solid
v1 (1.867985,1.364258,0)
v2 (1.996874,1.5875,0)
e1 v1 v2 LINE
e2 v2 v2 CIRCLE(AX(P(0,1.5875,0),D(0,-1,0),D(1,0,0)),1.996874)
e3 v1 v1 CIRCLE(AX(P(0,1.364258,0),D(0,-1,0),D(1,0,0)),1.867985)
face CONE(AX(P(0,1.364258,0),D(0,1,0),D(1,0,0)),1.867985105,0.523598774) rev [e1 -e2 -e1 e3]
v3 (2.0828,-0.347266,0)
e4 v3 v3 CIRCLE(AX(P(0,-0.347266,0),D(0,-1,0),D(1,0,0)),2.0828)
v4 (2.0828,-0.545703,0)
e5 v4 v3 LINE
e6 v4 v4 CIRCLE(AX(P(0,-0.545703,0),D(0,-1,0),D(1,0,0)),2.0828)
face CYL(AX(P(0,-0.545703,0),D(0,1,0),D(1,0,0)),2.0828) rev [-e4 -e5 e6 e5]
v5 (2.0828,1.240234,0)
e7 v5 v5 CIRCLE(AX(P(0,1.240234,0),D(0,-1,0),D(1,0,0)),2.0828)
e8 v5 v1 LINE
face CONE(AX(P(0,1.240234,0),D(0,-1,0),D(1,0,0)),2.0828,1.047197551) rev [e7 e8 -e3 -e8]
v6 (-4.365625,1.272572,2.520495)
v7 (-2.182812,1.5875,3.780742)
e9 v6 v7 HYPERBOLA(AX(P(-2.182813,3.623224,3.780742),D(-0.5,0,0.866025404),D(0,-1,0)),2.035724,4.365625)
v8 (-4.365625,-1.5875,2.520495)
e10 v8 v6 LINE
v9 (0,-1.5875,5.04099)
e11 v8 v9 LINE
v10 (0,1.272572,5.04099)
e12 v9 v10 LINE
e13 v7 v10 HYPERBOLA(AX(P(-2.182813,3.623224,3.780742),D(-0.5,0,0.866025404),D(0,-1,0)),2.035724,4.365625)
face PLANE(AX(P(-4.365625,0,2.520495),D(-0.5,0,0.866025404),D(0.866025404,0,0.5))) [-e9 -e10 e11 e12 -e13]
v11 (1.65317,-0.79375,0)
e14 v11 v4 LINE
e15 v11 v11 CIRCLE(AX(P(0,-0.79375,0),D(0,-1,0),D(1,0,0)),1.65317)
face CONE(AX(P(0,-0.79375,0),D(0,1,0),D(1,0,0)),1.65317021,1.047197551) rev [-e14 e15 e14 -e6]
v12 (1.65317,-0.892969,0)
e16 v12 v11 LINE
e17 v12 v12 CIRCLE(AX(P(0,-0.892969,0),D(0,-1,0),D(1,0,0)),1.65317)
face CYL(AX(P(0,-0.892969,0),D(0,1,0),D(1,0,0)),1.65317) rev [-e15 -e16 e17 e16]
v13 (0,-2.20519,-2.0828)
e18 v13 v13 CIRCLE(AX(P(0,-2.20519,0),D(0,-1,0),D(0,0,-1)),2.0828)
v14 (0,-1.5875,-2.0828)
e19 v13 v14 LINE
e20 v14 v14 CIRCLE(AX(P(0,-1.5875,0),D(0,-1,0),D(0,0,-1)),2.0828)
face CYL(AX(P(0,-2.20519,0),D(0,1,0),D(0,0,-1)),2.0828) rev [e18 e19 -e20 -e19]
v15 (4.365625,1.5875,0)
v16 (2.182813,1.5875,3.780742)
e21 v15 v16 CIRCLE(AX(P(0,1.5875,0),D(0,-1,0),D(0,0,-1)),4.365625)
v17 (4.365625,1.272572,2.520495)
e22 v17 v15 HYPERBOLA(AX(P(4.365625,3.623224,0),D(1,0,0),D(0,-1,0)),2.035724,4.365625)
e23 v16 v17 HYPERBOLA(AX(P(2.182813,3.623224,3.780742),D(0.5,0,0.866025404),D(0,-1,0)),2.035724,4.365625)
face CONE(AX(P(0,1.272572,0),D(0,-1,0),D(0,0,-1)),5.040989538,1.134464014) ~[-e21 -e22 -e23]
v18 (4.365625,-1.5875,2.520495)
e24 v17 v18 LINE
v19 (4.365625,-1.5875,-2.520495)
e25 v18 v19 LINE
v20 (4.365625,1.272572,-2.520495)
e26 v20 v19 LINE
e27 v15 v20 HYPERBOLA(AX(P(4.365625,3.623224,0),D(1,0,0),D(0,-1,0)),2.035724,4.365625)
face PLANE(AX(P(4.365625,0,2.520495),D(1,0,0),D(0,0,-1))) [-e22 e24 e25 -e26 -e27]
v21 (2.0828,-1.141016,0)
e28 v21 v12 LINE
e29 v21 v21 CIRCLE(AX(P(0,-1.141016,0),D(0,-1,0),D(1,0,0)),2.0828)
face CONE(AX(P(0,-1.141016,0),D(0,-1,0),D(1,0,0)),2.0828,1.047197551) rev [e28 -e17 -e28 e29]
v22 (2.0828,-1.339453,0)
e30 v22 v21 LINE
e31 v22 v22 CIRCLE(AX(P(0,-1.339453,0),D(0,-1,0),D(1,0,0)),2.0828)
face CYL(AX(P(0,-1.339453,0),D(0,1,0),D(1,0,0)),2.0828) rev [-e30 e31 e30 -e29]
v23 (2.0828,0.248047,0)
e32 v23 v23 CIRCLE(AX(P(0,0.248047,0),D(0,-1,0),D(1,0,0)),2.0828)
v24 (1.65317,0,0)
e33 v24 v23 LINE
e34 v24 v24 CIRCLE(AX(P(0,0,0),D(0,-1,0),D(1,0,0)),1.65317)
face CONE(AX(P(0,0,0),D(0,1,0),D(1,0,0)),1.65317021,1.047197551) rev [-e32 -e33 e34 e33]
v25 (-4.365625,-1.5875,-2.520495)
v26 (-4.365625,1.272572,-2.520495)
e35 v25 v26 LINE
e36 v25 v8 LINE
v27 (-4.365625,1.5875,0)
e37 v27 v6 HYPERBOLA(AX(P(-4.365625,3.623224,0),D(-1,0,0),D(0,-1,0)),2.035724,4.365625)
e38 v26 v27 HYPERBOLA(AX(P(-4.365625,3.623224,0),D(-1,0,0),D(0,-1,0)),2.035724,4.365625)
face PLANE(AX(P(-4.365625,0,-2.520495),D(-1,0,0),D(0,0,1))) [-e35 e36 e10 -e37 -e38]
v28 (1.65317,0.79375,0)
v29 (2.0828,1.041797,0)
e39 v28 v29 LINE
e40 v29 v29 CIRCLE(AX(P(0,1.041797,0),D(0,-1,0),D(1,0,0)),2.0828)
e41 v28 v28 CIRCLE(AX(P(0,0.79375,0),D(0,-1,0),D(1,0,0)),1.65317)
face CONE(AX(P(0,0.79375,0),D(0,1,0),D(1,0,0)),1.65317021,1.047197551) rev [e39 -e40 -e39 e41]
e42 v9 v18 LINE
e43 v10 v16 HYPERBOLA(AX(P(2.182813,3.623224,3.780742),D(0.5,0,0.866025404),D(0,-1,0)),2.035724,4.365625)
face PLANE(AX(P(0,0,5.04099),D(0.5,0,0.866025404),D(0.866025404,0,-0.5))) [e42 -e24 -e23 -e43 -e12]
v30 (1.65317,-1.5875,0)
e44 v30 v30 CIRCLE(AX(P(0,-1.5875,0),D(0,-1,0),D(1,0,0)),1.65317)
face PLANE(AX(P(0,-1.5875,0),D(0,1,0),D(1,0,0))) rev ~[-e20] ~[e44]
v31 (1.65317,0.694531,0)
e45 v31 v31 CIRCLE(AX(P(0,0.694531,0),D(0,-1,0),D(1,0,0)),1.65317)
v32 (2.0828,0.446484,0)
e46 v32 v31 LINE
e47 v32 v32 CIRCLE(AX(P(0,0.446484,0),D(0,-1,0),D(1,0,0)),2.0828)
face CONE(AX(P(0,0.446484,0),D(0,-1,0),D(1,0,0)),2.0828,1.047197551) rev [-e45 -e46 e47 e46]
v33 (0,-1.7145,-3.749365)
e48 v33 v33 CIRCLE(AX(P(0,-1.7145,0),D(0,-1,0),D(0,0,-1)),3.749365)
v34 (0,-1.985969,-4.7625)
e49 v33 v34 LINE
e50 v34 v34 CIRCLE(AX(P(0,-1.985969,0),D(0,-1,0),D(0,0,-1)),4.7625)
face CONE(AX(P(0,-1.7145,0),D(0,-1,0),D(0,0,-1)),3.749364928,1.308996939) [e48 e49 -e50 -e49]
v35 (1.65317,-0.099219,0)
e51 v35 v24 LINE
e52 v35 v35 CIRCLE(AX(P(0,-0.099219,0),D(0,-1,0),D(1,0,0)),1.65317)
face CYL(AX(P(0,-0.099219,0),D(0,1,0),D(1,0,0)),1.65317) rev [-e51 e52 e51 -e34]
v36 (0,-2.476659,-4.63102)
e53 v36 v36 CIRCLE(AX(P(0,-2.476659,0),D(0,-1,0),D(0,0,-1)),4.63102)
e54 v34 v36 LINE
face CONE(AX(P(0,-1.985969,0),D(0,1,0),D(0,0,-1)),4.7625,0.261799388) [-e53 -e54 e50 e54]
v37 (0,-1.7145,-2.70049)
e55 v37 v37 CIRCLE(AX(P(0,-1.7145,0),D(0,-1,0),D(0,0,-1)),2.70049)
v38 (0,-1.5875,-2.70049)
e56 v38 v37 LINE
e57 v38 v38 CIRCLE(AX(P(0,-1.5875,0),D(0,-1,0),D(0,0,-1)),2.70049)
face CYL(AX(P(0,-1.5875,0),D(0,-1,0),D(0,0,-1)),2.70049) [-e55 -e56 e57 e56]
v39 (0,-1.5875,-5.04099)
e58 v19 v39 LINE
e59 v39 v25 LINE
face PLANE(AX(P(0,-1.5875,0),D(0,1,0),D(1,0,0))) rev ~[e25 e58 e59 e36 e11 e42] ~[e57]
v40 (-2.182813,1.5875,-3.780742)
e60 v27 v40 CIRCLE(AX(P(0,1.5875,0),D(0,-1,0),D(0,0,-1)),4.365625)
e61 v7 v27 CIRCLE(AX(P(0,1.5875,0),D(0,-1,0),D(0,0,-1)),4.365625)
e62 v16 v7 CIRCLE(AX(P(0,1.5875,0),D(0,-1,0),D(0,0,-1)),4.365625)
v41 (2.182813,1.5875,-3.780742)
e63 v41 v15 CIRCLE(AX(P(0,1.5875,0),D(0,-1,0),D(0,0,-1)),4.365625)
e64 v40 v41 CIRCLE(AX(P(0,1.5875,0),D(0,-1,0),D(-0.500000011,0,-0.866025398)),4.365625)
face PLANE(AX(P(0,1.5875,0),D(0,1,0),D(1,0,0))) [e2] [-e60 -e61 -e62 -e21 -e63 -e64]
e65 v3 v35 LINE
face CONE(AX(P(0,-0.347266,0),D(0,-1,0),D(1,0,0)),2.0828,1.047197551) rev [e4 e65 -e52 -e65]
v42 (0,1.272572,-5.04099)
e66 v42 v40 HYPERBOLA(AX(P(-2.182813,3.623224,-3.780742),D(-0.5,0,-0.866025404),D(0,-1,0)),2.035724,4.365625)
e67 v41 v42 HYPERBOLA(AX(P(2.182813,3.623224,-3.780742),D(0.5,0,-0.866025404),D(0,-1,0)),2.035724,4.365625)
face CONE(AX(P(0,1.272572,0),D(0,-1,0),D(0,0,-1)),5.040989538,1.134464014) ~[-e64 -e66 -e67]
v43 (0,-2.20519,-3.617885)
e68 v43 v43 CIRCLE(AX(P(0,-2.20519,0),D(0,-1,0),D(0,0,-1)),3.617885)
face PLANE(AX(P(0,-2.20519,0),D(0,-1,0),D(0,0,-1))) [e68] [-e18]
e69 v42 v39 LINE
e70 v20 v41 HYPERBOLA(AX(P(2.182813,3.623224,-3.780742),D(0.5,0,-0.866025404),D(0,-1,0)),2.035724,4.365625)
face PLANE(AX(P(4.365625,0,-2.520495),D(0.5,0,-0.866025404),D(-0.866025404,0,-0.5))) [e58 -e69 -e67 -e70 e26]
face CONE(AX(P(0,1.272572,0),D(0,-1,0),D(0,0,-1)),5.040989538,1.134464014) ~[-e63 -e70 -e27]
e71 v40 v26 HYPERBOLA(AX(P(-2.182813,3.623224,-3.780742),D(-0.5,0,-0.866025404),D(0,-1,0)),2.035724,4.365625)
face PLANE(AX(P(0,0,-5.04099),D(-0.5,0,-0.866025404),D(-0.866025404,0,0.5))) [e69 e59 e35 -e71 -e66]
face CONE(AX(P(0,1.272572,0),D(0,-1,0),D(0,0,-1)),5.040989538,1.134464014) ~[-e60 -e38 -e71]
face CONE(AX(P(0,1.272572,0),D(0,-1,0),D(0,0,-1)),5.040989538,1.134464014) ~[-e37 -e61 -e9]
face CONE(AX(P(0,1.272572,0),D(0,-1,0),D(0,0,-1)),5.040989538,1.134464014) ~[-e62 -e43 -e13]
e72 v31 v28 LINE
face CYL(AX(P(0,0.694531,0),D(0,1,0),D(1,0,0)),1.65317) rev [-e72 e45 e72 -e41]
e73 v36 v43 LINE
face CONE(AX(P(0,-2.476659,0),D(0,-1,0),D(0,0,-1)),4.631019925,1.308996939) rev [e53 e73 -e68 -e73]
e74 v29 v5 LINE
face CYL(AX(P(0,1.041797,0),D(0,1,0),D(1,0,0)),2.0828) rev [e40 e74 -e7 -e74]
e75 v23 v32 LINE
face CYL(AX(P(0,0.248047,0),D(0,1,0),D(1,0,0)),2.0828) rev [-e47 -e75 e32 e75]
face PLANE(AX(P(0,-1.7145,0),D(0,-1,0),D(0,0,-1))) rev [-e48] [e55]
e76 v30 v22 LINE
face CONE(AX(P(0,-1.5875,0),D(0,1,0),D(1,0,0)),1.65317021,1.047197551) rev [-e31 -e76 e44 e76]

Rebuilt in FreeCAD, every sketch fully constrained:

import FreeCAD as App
import Part
import Sketcher

V = App.Vector
Q = App.Units.Quantity


def add_polygon(sketch, points):
    """Adds a closed chain of lines whose ends are joined by coincident constraints."""
    first, n = sketch.GeometryCount, len(points)
    for a, b in zip(points, points[1:] + points[:1]):
        sketch.addGeometry(Part.LineSegment(App.Vector(*a, 0), App.Vector(*b, 0)), False)
    for i in range(n):
        sketch.addConstraint(Sketcher.Constraint("Coincident", first + i, 2, first + (i + 1) % n, 1))

doc = App.newDocument("Part")
body = doc.addObject("PartDesign::Body", "Body")

# Sketch on XZ plane
sketch1 = body.newObject("Sketcher::SketchObject", "Sketch")
sketch1.AttachmentSupport = (doc.getObject("XZ_Plane"), [""])
sketch1.MapMode = "FlatFace"
add_polygon(sketch1, [(0, -5.04099), (-4.365625, -2.520495), (-4.365625, 2.520495), (0, 5.04099), (4.365625, 2.520495), (4.365625, -2.520495)])  # lines 0-5
sketch1.addConstraint(Sketcher.Constraint("Vertical", 1))
sketch1.addConstraint(Sketcher.Constraint("Vertical", 4))
sketch1.addConstraint(Sketcher.Constraint("Symmetric", 0, 2, 3, 2, -1, 1))
sketch1.addConstraint(Sketcher.Constraint("Symmetric", 2, 2, 5, 2, -1, 1))
sketch1.addConstraint(Sketcher.Constraint("PointOnObject", 2, 2, -2))
sketch1.addConstraint(Sketcher.Constraint("Parallel", 2, 5))
sketch1.addConstraint(Sketcher.Constraint("Horizontal", 1, 2, 3, 2))
sketch1.addConstraint(Sketcher.Constraint("Angle", 0, Q("150 deg")))
sketch1.addConstraint(Sketcher.Constraint("DistanceX", 0, 2, -1, 1, Q("0.171875 in")))
sketch1.addConstraint(Sketcher.Constraint("DistanceY", 1, 1, 1, 2, 5.04099))
pad1 = body.newObject("PartDesign::Pad", "Pad")
pad1.Profile = sketch1
pad1.Length = Q("0.125 in")
pad1.Midplane = True

# Sketch on YZ plane
sketch2 = body.newObject("Sketcher::SketchObject", "Sketch001")
sketch2.AttachmentSupport = (doc.getObject("YZ_Plane"), [""])
sketch2.MapMode = "FlatFace"
add_polygon(sketch2, [(1.5875, -5.04099), (1.5875, -4.365625), (1.272572, -5.04099)])  # lines 0-2
sketch2.addConstraint(Sketcher.Constraint("Vertical", 0))
sketch2.addConstraint(Sketcher.Constraint("Horizontal", 2))
sketch2.addConstraint(Sketcher.Constraint("Angle", 1, Q("-115 deg")))
sketch2.addConstraint(Sketcher.Constraint("DistanceX", -1, 1, 0, 2, Q("0.0625 in")))
sketch2.addConstraint(Sketcher.Constraint("DistanceY", 0, 2, -1, 1, Q("0.171875 in")))
sketch2.addConstraint(Sketcher.Constraint("DistanceX", 2, 1, 2, 2, 0.314928))
groove = body.newObject("PartDesign::Groove", "Groove")
groove.Profile = sketch2
groove.ReferenceAxis = (sketch2, ["H_Axis"])
groove.Angle = 360

# Sketch on XY plane
sketch3 = body.newObject("Sketcher::SketchObject", "Sketch002")
sketch3.AttachmentSupport = (doc.getObject("XY_Plane"), [""])
sketch3.MapMode = "FlatFace"
add_polygon(sketch3, [(1.65317, 1.488281), (1.65317, 1.5875), (0, 1.5875), (0, 0.79375), (1.65317, 0.79375), (2.0828, 1.041797), (2.0828, 1.240234)])  # lines 0-6
sketch3.addConstraint(Sketcher.Constraint("Vertical", 0))
sketch3.addConstraint(Sketcher.Constraint("Horizontal", 1))
sketch3.addConstraint(Sketcher.Constraint("Vertical", 2))
sketch3.addConstraint(Sketcher.Constraint("Horizontal", 3))
sketch3.addConstraint(Sketcher.Constraint("Vertical", 5))
sketch3.addConstraint(Sketcher.Constraint("PointOnObject", 1, 2, -2))
sketch3.addConstraint(Sketcher.Constraint("Vertical", 0, 2, 3, 2))
sketch3.addConstraint(Sketcher.Constraint("Equal", 4, 6))
sketch3.addConstraint(Sketcher.Constraint("Angle", 4, Q("30 deg")))
sketch3.addConstraint(Sketcher.Constraint("DistanceY", 2, 2, 2, 1, Q("0.03125 in")))
sketch3.addConstraint(Sketcher.Constraint("DistanceY", -1, 1, 0, 2, Q("0.0625 in")))
sketch3.addConstraint(Sketcher.Constraint("DistanceX", -1, 1, 4, 2, Q("0.082 in")))
sketch3.addConstraint(Sketcher.Constraint("DistanceX", 1, 2, 1, 1, 1.65317))
sketch3.addConstraint(Sketcher.Constraint("DistanceY", 0, 1, 0, 2, 0.099219))
groove2 = body.newObject("PartDesign::Groove", "Groove001")
groove2.Profile = sketch3
groove2.ReferenceAxis = (sketch3, ["V_Axis"])
groove2.Angle = 360
doc.recompute()

linearpattern = body.newObject("PartDesign::LinearPattern", "LinearPattern")
linearpattern.Originals = [groove2]
linearpattern.Direction = (doc.getObject("Y_Axis"), [""])
linearpattern.Mode = "offset"
linearpattern.Offset = Q("0.03125 in")
linearpattern.Occurrences = 5
linearpattern.Reversed = True
body.Tip = linearpattern

# Sketch on XY plane
sketch4 = body.newObject("Sketcher::SketchObject", "Sketch003")
sketch4.AttachmentSupport = (doc.getObject("XY_Plane"), [""])
sketch4.MapMode = "FlatFace"
add_polygon(sketch4, [(1.867985, 1.364258), (1.996874, 1.5875), (1.65317, 1.5875), (1.65317, 1.488281)])  # lines 0-3
sketch4.addConstraint(Sketcher.Constraint("Horizontal", 1))
sketch4.addConstraint(Sketcher.Constraint("Vertical", 2))
sketch4.addConstraint(Sketcher.Constraint("Perpendicular", 0, 3))
sketch4.addConstraint(Sketcher.Constraint("Angle", 0, Q("60 deg")))
sketch4.addConstraint(Sketcher.Constraint("DistanceY", -1, 1, 0, 2, Q("0.0625 in")))
sketch4.addConstraint(Sketcher.Constraint("DistanceY", 2, 2, 2, 1, 0.099219))
sketch4.addConstraint(Sketcher.Constraint("DistanceX", 1, 2, 1, 1, 0.343704))
sketch4.addConstraint(Sketcher.Constraint("DistanceX", -1, 1, 1, 2, 1.65317))
groove3 = body.newObject("PartDesign::Groove", "Groove002")
groove3.Profile = sketch4
groove3.ReferenceAxis = (sketch4, ["V_Axis"])
groove3.Angle = 360

# Sketch on YZ plane
sketch5 = body.newObject("Sketcher::SketchObject", "Sketch004")
sketch5.AttachmentSupport = (doc.getObject("YZ_Plane"), [""])
sketch5.MapMode = "FlatFace"
add_polygon(sketch5, [(-1.7145, -3.749365), (-1.7145, -2.70049), (-1.5875, -2.70049), (-1.5875, -2.0828), (-2.20519, -2.0828), (-2.20519, -3.617885), (-2.476659, -4.63102), (-1.985969, -4.7625)])  # lines 0-7
sketch5.addConstraint(Sketcher.Constraint("Vertical", 0))
sketch5.addConstraint(Sketcher.Constraint("Horizontal", 1))
sketch5.addConstraint(Sketcher.Constraint("Vertical", 2))
sketch5.addConstraint(Sketcher.Constraint("Horizontal", 3))
sketch5.addConstraint(Sketcher.Constraint("Vertical", 4))
sketch5.addConstraint(Sketcher.Constraint("Perpendicular", 5, 6))
sketch5.addConstraint(Sketcher.Constraint("Perpendicular", 6, 7))
sketch5.addConstraint(Sketcher.Constraint("Equal", 3, 2))
sketch5.addConstraint(Sketcher.Constraint("Equal", 5, 7))
sketch5.addConstraint(Sketcher.Constraint("Angle", 5, Q("-105 deg")))
sketch5.addConstraint(Sketcher.Constraint("Distance", 6, Q("0.02 in")))
sketch5.addConstraint(Sketcher.Constraint("DistanceX", 1, 1, 1, 2, Q("0.005 in")))
sketch5.addConstraint(Sketcher.Constraint("DistanceX", 1, 2, -1, 1, Q("0.0625 in")))
sketch5.addConstraint(Sketcher.Constraint("DistanceY", 2, 2, -1, 1, Q("0.082 in")))
sketch5.addConstraint(Sketcher.Constraint("DistanceY", 6, 2, -1, 1, Q("0.1875 in")))
sketch5.addConstraint(Sketcher.Constraint("DistanceY", 0, 1, 0, 2, 1.048875))
revolution = body.newObject("PartDesign::Revolution", "Revolution")
revolution.Profile = sketch5
revolution.ReferenceAxis = (sketch5, ["H_Axis"])
revolution.Angle = 360

doc.recompute()
